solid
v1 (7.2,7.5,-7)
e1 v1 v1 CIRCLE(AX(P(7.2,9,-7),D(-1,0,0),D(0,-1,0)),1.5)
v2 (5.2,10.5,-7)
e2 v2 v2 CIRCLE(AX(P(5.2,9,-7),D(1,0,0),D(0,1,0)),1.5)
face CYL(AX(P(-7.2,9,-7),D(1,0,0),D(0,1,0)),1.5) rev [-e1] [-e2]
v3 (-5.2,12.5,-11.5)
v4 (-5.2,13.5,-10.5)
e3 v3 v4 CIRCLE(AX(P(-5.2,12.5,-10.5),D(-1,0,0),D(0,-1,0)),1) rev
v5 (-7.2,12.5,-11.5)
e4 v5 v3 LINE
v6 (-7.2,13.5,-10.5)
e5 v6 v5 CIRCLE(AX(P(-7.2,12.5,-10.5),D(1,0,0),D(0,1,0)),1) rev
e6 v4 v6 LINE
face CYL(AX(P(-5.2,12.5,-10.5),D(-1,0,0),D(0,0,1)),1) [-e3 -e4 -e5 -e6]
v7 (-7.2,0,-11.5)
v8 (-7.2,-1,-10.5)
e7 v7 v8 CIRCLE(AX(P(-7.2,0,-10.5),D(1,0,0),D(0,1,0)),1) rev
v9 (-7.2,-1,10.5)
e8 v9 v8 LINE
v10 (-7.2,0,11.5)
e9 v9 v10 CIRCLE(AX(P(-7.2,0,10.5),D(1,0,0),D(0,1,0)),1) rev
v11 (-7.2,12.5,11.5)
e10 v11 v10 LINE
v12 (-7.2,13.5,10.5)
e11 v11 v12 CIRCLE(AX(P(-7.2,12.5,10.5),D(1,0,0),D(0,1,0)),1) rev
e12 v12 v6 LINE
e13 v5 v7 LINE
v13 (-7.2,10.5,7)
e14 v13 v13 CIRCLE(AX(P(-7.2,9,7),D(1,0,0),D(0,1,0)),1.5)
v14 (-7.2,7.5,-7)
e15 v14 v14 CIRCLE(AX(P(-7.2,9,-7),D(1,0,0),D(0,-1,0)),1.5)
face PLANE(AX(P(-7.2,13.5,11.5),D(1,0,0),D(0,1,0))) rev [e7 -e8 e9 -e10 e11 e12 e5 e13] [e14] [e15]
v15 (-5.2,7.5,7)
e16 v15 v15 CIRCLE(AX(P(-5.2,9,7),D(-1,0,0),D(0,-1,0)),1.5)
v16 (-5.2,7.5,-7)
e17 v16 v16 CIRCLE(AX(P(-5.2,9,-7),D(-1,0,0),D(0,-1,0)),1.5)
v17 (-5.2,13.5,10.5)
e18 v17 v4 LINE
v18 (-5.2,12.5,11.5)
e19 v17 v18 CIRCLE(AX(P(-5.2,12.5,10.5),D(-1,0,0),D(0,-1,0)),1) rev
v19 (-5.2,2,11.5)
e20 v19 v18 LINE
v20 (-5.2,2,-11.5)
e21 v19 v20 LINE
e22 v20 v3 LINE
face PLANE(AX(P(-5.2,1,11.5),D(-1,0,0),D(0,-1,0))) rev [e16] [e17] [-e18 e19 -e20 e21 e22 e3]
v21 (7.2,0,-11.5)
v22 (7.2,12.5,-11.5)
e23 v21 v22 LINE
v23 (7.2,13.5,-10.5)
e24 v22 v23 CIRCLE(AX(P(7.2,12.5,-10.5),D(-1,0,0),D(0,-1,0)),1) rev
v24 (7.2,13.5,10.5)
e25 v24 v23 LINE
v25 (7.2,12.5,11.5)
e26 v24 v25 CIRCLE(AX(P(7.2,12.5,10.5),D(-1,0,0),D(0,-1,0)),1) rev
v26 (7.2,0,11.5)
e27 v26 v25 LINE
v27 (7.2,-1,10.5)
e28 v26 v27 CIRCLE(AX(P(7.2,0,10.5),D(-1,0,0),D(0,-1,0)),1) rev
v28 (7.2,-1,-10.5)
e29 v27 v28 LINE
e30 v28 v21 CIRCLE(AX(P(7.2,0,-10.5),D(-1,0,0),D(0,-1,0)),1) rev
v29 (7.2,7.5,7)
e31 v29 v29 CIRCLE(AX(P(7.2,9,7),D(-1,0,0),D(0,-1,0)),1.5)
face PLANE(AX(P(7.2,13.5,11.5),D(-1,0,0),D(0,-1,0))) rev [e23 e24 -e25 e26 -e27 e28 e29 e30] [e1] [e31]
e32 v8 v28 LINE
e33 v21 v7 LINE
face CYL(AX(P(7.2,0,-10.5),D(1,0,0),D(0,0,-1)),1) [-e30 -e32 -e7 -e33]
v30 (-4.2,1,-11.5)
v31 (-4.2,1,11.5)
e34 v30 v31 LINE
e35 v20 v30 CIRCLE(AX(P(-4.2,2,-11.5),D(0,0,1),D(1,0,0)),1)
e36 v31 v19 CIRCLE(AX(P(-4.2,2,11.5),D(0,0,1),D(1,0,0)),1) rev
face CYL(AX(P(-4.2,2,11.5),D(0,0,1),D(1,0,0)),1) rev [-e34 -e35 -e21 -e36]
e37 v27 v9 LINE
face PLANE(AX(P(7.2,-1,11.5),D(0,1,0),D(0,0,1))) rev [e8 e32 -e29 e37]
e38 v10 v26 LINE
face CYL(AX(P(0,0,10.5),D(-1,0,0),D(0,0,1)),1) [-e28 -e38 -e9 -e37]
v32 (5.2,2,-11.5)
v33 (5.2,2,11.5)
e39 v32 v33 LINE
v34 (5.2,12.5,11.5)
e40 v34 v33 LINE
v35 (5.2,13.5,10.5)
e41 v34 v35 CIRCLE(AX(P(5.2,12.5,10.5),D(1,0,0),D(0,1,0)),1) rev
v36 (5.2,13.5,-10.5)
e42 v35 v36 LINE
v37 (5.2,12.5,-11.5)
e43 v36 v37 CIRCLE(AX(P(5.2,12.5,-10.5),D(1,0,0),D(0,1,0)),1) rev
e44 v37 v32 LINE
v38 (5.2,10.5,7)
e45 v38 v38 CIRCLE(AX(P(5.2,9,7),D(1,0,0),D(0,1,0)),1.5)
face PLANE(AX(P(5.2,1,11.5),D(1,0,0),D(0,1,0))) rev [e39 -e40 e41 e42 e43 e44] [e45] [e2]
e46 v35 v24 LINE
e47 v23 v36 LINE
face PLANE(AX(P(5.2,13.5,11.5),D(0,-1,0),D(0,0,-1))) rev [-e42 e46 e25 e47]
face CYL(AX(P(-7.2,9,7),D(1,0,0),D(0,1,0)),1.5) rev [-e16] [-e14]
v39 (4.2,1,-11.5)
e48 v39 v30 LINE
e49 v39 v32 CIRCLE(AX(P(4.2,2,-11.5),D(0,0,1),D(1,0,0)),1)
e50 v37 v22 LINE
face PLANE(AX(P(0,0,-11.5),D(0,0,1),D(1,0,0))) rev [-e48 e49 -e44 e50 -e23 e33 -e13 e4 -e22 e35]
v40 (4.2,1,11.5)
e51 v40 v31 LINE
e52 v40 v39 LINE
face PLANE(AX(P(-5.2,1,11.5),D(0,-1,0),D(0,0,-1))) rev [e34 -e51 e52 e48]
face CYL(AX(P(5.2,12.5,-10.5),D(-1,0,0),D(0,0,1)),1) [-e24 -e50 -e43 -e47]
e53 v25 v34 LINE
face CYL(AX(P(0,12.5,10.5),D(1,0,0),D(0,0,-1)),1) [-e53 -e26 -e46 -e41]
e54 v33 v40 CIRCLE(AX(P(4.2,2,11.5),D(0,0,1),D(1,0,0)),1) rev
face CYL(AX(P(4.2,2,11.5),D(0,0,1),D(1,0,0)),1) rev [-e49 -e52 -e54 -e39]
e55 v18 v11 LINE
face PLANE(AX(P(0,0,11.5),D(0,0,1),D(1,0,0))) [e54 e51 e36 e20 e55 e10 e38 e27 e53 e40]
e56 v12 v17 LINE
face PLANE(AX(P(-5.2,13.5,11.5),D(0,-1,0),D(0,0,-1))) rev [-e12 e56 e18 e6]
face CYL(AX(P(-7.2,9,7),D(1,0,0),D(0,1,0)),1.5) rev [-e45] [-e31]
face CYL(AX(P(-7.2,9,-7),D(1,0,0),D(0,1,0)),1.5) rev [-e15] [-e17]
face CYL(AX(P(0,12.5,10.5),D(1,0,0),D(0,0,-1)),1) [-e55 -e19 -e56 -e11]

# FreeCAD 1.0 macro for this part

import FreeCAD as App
import Part
import Sketcher

V = App.Vector
Q = App.Units.Quantity


def edges_at(feature, points):
    """Names of the edges that pass closest to the given points."""
    edges = feature.Shape.Edges
    near = lambda p: min(range(len(edges)), key=lambda i: edges[i].distToShape(Part.Vertex(*p))[0])
    return sorted({f"Edge{near(p) + 1}" for p in points})


def add_polygon(sketch, points):
    """Adds a closed chain of lines whose ends are joined by coincident constraints."""
    first, n = sketch.GeometryCount, len(points)
    for a, b in zip(points, points[1:] + points[:1]):
        sketch.addGeometry(Part.LineSegment(App.Vector(*a, 0), App.Vector(*b, 0)), False)
    for i in range(n):
        sketch.addConstraint(Sketcher.Constraint("Coincident", first + i, 2, first + (i + 1) % n, 1))

doc = App.newDocument("Part")
body = doc.addObject("PartDesign::Body", "Body")

sketch1 = doc.addObject("Sketcher::SketchObject", "Sketch")
body.addObject(sketch1)
sketch1.AttachmentSupport = (doc.XY_Plane, [""])
sketch1.MapMode = "FlatFace"
add_polygon(sketch1, [(5.2, 1), (-5.2, 1), (-5.2, 13.5), (-7.2, 13.5), (-7.2, -1), (7.2, -1), (7.2, 13.5), (5.2, 13.5)])
sketch1.addConstraint([
    Sketcher.Constraint("Horizontal", 0),
    Sketcher.Constraint("Vertical", 1),
    Sketcher.Constraint("Horizontal", 2),
    Sketcher.Constraint("Vertical", 3),
    Sketcher.Constraint("Horizontal", 4),
    Sketcher.Constraint("Vertical", 5),
    Sketcher.Constraint("Horizontal", 6),
    Sketcher.Constraint("Vertical", 7),
    Sketcher.Constraint("Symmetric", 2, 2, 5, 2, -2),
    Sketcher.Constraint("Equal", 2, 6),
    Sketcher.Constraint("DistanceX", 2, 2, 2, 1, Q("2 mm")),
    Sketcher.Constraint("DistanceX", 0, 2, 0, 1, Q("10.4 mm")),
    Sketcher.Constraint("DistanceY", 1, 1, 1, 2, Q("12.5 mm")),
    Sketcher.Constraint("DistanceY", 3, 2, 3, 1, Q("14.5 mm")),
    Sketcher.Constraint("DistanceY", -1, 1, 0, 2, Q("1 mm")),
])
pad1 = doc.addObject("PartDesign::Pad", "Pad")
body.addObject(pad1)
pad1.Profile = sketch1
pad1.Length = 23
pad1.Midplane = True

sketch2 = doc.addObject("Sketcher::SketchObject", "Sketch001")
body.addObject(sketch2)
sketch2.AttachmentSupport = (doc.YZ_Plane, [""])
sketch2.MapMode = "FlatFace"
sketch2.AttachmentOffset = App.Placement(V(0, 0, 7.2), App.Rotation())
sketch2.addGeometry([
    Part.Circle(V(9, 7, 0), V(0, 0, 1), 1.5),
    Part.Circle(V(9, -7, 0), V(0, 0, 1), 1.5),
], False)
sketch2.addConstraint([
    Sketcher.Constraint("Equal", 0, 1),
    Sketcher.Constraint("Symmetric", 0, 3, 1, 3, -1),
    Sketcher.Constraint("Diameter", 0, Q("3 mm")),
    Sketcher.Constraint("DistanceX", -1, 1, 0, 3, Q("9 mm")),
    Sketcher.Constraint("DistanceY", -1, 1, 0, 3, Q("7 mm")),
])
pocket1 = doc.addObject("PartDesign::Pocket", "Pocket")
body.addObject(pocket1)
pocket1.Profile = sketch2
pocket1.Type = "ThroughAll"
pocket1.Midplane = True
doc.recompute()

fillet = doc.addObject("PartDesign::Fillet", "Fillet")
body.addObject(fillet)
fillet.Base = (pocket1, edges_at(pocket1, [(0, -1, -11.5), (0, -1, 11.5)]))
fillet.Radius = 1
doc.recompute()

fillet2 = doc.addObject("PartDesign::Fillet", "Fillet001")
body.addObject(fillet2)
fillet2.Base = (fillet, edges_at(fillet, [(-5.2, 1, 0), (5.2, 1, 0)]))
fillet2.Radius = 1
doc.recompute()

fillet3 = doc.addObject("PartDesign::Fillet", "Fillet002")
body.addObject(fillet3)
fillet3.Base = (fillet2, edges_at(fillet2, [
    (-6.2, 13.5, -11.5),
    (6.2, 13.5, 11.5),
    (-6.2, 13.5, 11.5),
    (6.2, 13.5, -11.5),
]))
fillet3.Radius = 1

doc.recompute()
